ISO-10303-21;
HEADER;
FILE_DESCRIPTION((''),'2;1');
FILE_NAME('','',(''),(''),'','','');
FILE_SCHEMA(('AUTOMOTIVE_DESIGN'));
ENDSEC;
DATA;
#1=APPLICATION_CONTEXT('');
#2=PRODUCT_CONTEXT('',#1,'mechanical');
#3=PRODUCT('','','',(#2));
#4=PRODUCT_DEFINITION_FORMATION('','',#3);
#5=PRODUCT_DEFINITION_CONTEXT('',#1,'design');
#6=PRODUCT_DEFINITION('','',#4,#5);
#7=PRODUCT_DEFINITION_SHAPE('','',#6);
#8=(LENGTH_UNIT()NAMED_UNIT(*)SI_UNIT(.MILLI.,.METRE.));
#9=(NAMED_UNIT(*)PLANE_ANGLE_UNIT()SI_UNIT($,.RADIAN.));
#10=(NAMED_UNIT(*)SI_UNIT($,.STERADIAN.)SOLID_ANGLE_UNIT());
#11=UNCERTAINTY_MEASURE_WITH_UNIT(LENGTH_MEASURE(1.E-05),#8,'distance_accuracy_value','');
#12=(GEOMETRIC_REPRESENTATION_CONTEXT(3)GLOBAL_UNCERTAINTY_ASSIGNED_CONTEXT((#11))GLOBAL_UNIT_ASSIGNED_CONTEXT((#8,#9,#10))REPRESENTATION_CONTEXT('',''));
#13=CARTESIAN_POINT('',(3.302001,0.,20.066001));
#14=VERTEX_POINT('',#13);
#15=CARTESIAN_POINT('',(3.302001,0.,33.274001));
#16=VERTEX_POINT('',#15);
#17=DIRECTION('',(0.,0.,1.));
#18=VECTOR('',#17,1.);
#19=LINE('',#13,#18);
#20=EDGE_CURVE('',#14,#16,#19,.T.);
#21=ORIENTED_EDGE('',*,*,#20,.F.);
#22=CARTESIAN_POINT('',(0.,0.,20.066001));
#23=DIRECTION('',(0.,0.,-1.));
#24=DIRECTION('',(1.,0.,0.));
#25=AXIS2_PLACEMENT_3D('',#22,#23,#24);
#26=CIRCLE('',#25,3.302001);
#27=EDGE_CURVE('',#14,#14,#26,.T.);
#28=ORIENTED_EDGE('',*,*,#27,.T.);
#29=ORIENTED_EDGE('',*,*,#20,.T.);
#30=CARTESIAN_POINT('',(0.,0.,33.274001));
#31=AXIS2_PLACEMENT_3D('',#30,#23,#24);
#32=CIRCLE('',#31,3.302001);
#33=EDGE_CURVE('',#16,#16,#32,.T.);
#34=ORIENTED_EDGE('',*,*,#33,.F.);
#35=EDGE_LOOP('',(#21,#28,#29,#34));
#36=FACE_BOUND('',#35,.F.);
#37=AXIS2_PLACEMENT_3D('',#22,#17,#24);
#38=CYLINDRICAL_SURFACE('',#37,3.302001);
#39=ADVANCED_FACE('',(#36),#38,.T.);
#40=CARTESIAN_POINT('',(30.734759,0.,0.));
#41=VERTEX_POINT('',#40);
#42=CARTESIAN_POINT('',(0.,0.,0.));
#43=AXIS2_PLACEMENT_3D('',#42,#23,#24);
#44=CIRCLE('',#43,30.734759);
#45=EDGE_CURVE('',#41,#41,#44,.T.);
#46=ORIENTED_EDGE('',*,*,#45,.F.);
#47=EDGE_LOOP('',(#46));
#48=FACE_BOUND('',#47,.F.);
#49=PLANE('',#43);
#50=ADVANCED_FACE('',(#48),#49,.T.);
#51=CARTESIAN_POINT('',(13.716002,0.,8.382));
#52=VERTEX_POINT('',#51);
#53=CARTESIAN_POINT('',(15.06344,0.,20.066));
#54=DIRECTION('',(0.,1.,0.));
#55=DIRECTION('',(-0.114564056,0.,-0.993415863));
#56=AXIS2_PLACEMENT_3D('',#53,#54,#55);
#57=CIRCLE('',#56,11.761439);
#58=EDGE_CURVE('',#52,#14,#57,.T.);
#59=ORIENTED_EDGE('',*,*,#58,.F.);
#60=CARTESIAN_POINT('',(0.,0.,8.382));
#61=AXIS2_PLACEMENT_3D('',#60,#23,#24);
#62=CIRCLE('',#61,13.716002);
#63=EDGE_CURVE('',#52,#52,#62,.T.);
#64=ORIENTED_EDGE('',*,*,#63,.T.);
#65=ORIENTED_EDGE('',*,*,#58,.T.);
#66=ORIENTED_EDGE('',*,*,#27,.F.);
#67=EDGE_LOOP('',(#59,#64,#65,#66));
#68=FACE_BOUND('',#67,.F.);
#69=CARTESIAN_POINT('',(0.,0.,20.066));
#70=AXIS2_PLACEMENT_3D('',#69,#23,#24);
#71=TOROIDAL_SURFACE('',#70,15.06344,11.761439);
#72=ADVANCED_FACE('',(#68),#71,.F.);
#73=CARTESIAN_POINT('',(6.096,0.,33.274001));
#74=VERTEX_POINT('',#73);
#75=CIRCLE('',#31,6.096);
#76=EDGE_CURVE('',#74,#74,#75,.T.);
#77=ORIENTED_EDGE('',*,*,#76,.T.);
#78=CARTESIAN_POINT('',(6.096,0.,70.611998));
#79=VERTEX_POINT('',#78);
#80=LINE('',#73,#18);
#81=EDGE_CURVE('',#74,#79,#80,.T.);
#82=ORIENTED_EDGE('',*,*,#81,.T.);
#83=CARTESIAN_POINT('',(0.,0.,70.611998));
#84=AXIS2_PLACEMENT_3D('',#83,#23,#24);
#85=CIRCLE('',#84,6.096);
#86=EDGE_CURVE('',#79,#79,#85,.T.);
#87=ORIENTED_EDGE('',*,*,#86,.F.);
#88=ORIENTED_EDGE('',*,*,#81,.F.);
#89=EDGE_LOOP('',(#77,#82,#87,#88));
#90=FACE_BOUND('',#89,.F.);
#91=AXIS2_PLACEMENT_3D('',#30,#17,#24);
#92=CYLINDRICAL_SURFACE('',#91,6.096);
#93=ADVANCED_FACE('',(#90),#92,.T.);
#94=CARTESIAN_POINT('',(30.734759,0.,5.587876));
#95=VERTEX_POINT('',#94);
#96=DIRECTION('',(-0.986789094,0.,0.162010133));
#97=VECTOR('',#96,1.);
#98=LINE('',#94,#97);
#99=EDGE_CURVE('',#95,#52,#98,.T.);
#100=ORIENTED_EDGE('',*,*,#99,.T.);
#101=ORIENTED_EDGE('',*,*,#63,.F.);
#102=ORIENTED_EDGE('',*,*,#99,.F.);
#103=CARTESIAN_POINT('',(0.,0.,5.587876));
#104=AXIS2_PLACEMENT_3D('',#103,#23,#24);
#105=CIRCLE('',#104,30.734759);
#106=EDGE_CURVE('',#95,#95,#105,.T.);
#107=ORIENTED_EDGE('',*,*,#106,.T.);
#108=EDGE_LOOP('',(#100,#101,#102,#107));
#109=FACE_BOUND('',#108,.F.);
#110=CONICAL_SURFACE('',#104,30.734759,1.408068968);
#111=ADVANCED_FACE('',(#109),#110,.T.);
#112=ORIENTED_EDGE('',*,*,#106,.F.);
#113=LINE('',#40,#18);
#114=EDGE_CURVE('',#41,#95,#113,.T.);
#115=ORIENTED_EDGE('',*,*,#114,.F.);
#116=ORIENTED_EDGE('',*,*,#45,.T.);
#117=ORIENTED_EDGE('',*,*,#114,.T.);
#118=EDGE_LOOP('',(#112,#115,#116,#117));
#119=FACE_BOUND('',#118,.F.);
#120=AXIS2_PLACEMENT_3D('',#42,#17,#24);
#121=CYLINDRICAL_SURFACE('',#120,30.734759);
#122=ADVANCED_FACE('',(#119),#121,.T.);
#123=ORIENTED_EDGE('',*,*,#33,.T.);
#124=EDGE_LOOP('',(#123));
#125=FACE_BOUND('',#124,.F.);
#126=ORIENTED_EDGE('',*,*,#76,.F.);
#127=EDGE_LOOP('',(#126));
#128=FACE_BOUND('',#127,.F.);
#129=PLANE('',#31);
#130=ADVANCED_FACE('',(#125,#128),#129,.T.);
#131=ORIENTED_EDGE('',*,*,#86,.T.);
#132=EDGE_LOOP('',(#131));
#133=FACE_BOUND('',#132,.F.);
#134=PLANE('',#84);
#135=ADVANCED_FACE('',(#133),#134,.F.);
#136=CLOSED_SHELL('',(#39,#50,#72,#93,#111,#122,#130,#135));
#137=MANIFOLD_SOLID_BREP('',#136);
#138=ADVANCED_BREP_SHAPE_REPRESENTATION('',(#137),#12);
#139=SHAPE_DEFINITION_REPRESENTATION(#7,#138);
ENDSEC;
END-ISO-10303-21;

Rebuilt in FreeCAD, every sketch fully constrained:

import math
import FreeCAD as App
import Part
import Sketcher
Q = App.Units.Quantity

doc = App.newDocument("Part")
params = doc.addObject("Spreadsheet::Sheet", "Params")
for row, (alias, value) in enumerate([
    ("sketch1_width", "0.24 in"),
    ("sketch1_width2", "0.11 in"),
    ("sketch1_height", "2.7799999 in"),
    ("sketch1_height2", "0.52 in"),
    ("sketch1_height3", "1.4699999 in"),
    ("revolution_angle", "360 deg"),
], start=1):
    params.set(f"A{row}", alias)
    params.set(f"B{row}", "=" + value)
    params.setAlias(f"B{row}", alias)

body = doc.addObject("PartDesign::Body", "Body")

sketch1 = body.newObject("Sketcher::SketchObject", "Sketch")
sketch1.AttachmentSupport = (doc.getObject("XZ_Plane"), [""])
sketch1.MapMode = "FlatFace"
sketch1.addGeometry([
    Part.LineSegment(App.Vector(6.1, 70.6, 0), App.Vector(0, 70.6, 0)),
    Part.LineSegment(App.Vector(0, 70.6, 0), App.Vector(0, 0, 0)),
    Part.LineSegment(App.Vector(0, 0, 0), App.Vector(30.7, 0, 0)),
    Part.LineSegment(App.Vector(30.7, 0, 0), App.Vector(30.7, 5.6, 0)),
    Part.LineSegment(App.Vector(30.7, 5.6, 0), App.Vector(13.7, 8.4, 0)),
    Part.ArcOfCircle(Part.Circle(App.Vector(15.1, 20.1, 0), App.Vector(0, 0, 1), 11.8), math.radians(180), math.radians(263)),
    Part.LineSegment(App.Vector(3.3, 20.1, 0), App.Vector(3.3, 33.3, 0)),
    Part.LineSegment(App.Vector(3.3, 33.3, 0), App.Vector(6.1, 33.3, 0)),
    Part.LineSegment(App.Vector(6.1, 33.3, 0), App.Vector(6.1, 70.6, 0)),
], False)
sketch1.addConstraint([
    Sketcher.Constraint("Coincident", 0, 2, 1, 1),
    Sketcher.Constraint("Coincident", 1, 2, 2, 1),
    Sketcher.Constraint("Coincident", 2, 2, 3, 1),
    Sketcher.Constraint("Coincident", 3, 2, 4, 1),
    Sketcher.Constraint("Coincident", 4, 2, 5, 2),
    Sketcher.Constraint("Tangent", 5, 1, 6, 1),
    Sketcher.Constraint("Coincident", 6, 2, 7, 1),
    Sketcher.Constraint("Coincident", 7, 2, 8, 1),
    Sketcher.Constraint("Coincident", 8, 2, 0, 1),
    Sketcher.Constraint("Horizontal", 0),
    Sketcher.Constraint("Vertical", 1),
    Sketcher.Constraint("Horizontal", 2),
    Sketcher.Constraint("Vertical", 3),
    Sketcher.Constraint("Vertical", 6),
    Sketcher.Constraint("Horizontal", 7),
    Sketcher.Constraint("Vertical", 8),
    Sketcher.Constraint("Coincident", 1, 2, -1, 1),
    Sketcher.Constraint("DistanceX", 0, 2, 0, 1, Q("0.24 in")),
    Sketcher.Constraint("DistanceX", 7, 1, 7, 2, Q("0.11 in")),
    Sketcher.Constraint("DistanceY", 1, 2, 1, 1, Q("2.7799999 in")),
    Sketcher.Constraint("DistanceY", 6, 1, 6, 2, Q("0.52 in")),
    Sketcher.Constraint("DistanceY", 8, 1, 8, 2, Q("1.4699999 in")),
    Sketcher.Constraint("DistanceX", 7, 2, 4, 2, Q("0.3000001 in")),
    Sketcher.Constraint("DistanceY", -1, 1, 4, 2, Q("0.33 in")),
    Sketcher.Constraint("Distance", 4, Q("0.679 in")),
    Sketcher.Constraint("DistanceX", 2, 1, 2, 2, 30.734759),
])
sketch1.setExpression("Constraints[17]", "Params.sketch1_width")
sketch1.setExpression("Constraints[18]", "Params.sketch1_width2")
sketch1.setExpression("Constraints[19]", "Params.sketch1_height")
sketch1.setExpression("Constraints[20]", "Params.sketch1_height2")
sketch1.setExpression("Constraints[21]", "Params.sketch1_height3")
revolution = body.newObject("PartDesign::Revolution", "Revolution")
revolution.Profile = sketch1
revolution.ReferenceAxis = (sketch1, ["V_Axis"])
revolution.setExpression("Angle", "Params.revolution_angle")

doc.recompute()
